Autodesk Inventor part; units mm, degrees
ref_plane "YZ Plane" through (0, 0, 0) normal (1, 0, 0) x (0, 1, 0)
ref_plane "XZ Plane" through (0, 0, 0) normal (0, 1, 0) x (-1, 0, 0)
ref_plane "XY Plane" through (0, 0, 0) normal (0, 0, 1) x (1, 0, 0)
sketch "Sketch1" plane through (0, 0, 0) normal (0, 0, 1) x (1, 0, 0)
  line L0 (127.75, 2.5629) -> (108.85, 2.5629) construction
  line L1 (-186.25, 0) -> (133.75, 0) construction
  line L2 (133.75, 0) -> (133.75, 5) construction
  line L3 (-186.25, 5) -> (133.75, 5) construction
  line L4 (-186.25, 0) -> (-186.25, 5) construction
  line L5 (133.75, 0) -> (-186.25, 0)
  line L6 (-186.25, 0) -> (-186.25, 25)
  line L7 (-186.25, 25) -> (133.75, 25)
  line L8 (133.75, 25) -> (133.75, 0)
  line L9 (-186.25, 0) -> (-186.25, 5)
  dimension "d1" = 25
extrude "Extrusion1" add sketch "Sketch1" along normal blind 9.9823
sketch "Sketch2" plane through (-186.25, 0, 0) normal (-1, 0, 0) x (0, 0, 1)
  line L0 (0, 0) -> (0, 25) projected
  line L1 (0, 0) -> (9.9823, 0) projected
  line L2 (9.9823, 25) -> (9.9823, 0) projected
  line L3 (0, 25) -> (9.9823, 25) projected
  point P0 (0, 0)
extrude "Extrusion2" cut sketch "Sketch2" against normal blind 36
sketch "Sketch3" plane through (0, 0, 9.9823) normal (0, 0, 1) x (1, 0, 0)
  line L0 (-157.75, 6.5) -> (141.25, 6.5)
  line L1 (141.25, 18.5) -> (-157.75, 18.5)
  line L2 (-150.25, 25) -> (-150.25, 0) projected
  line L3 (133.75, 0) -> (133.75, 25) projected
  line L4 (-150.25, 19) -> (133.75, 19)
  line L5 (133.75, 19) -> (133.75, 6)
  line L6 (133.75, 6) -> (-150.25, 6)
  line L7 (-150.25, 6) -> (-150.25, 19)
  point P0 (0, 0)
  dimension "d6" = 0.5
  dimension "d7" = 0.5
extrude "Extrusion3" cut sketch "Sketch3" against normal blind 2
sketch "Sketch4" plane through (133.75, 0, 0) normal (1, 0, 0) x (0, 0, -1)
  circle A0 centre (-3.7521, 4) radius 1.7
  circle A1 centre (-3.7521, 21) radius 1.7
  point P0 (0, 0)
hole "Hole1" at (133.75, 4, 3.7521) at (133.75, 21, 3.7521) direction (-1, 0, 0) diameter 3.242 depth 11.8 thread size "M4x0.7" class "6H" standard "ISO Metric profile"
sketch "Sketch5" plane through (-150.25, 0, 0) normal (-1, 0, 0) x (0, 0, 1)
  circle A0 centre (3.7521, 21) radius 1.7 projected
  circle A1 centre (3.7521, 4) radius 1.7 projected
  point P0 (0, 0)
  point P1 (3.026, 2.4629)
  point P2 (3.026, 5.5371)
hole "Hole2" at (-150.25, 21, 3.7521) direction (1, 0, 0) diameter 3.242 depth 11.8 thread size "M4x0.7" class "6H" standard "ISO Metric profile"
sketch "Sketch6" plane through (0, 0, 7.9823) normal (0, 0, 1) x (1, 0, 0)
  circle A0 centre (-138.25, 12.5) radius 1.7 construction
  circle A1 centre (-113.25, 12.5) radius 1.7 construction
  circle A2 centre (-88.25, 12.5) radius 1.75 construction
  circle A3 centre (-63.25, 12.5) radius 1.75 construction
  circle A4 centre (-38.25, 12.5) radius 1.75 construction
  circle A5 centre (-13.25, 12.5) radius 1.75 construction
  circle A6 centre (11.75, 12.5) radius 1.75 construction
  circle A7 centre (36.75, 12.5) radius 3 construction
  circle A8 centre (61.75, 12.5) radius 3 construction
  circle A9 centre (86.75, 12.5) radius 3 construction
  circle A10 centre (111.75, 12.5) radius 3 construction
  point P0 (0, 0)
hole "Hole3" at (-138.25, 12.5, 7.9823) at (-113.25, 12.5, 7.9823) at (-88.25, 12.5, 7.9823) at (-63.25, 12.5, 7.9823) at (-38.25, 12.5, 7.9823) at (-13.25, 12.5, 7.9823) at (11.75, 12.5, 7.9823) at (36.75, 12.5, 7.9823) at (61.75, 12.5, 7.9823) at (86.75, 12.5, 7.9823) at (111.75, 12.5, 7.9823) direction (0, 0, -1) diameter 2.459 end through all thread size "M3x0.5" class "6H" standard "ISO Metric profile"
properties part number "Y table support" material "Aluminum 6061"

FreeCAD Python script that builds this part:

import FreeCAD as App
import Part
import Sketcher

V = App.Vector
Q = App.Units.Quantity


def add_polygon(sketch, points):
    """Adds a closed chain of lines whose ends are joined by coincident constraints."""
    first, n = sketch.GeometryCount, len(points)
    for a, b in zip(points, points[1:] + points[:1]):
        sketch.addGeometry(Part.LineSegment(App.Vector(*a, 0), App.Vector(*b, 0)), False)
    for i in range(n):
        sketch.addConstraint(Sketcher.Constraint("Coincident", first + i, 2, first + (i + 1) % n, 1))

doc = App.newDocument("Part")
body = doc.addObject("PartDesign::Body", "Body")

sketch1 = body.newObject("Sketcher::SketchObject", "Sketch")
sketch1.AttachmentSupport = (doc.getObject("XY_Plane"), [""])
sketch1.MapMode = "FlatFace"
add_polygon(sketch1, [(-186, 0), (134, 0), (134, 25), (-186, 25)])
sketch1.addConstraint(Sketcher.Constraint("Horizontal", 0))
sketch1.addConstraint(Sketcher.Constraint("Vertical", 1))
sketch1.addConstraint(Sketcher.Constraint("Horizontal", 2))
sketch1.addConstraint(Sketcher.Constraint("Vertical", 3))
sketch1.addConstraint(Sketcher.Constraint("PointOnObject", 0, 2, -1))
sketch1.addConstraint(Sketcher.Constraint("DistanceY", 1, 1, 1, 2, Q("25 mm")))
sketch1.addConstraint(Sketcher.Constraint("DistanceX", 0, 1, 0, 2, Q("320 mm")))
sketch1.addConstraint(Sketcher.Constraint("DistanceX", -1, 1, 0, 2, Q("133.75 mm")))
pad1 = body.newObject("PartDesign::Pad", "Pad")
pad1.Profile = sketch1
pad1.Length = 9.9823

sketch2 = body.newObject("Sketcher::SketchObject", "Sketch001")
sketch2.AttachmentSupport = (doc.getObject("YZ_Plane"), [""])
sketch2.MapMode = "FlatFace"
sketch2.AttachmentOffset = App.Placement(V(0, 0, -186.25), App.Rotation())
add_polygon(sketch2, [(25, 0), (0, 0), (0, 10), (25, 10)])
sketch2.addConstraint(Sketcher.Constraint("Horizontal", 0))
sketch2.addConstraint(Sketcher.Constraint("Vertical", 1))
sketch2.addConstraint(Sketcher.Constraint("Horizontal", 2))
sketch2.addConstraint(Sketcher.Constraint("Vertical", 3))
sketch2.addConstraint(Sketcher.Constraint("Coincident", 0, 2, -1, 1))
sketch2.addConstraint(Sketcher.Constraint("DistanceX", 0, 2, 0, 1, Q("25 mm")))
sketch2.addConstraint(Sketcher.Constraint("DistanceY", 1, 1, 1, 2, Q("9.9823 mm")))
pocket1 = body.newObject("PartDesign::Pocket", "Pocket")
pocket1.Profile = sketch2
pocket1.Length = 36
pocket1.Reversed = True

sketch3 = body.newObject("Sketcher::SketchObject", "Sketch002")
sketch3.AttachmentSupport = (doc.getObject("XY_Plane"), [""])
sketch3.MapMode = "FlatFace"
sketch3.AttachmentOffset = App.Placement(V(0, 0, 9.9823), App.Rotation())
add_polygon(sketch3, [(-150, 6), (134, 6), (134, 19), (-150, 19)])
sketch3.addConstraint(Sketcher.Constraint("Horizontal", 0))
sketch3.addConstraint(Sketcher.Constraint("Vertical", 1))
sketch3.addConstraint(Sketcher.Constraint("Horizontal", 2))
sketch3.addConstraint(Sketcher.Constraint("Vertical", 3))
sketch3.addConstraint(Sketcher.Constraint("DistanceX", 0, 1, 0, 2, Q("284 mm")))
sketch3.addConstraint(Sketcher.Constraint("DistanceY", 1, 1, 1, 2, Q("13 mm")))
sketch3.addConstraint(Sketcher.Constraint("DistanceY", -1, 1, 0, 2, Q("6 mm")))
sketch3.addConstraint(Sketcher.Constraint("DistanceX", -1, 1, 0, 2, Q("133.75 mm")))
pocket2 = body.newObject("PartDesign::Pocket", "Pocket001")
pocket2.Profile = sketch3
pocket2.Length = 2

sketch4 = body.newObject("Sketcher::SketchObject", "Sketch003")
sketch4.AttachmentSupport = (doc.getObject("YZ_Plane"), [""])
sketch4.MapMode = "FlatFace"
sketch4.AttachmentOffset = App.Placement(V(0, 0, 133.75), App.Rotation())
sketch4.addGeometry(Part.Circle(V(4, 3.8, 0), V(0, 0, 1), 1.6), False)
sketch4.addGeometry(Part.Circle(V(21, 3.8, 0), V(0, 0, 1), 1.6), False)
sketch4.addConstraint(Sketcher.Constraint("Equal", 0, 1))
sketch4.addConstraint(Sketcher.Constraint("Horizontal", 0, 3, 1, 3))
sketch4.addConstraint(Sketcher.Constraint("Diameter", 0, Q("3.242 mm")))
sketch4.addConstraint(Sketcher.Constraint("DistanceX", -1, 1, 0, 3, Q("4 mm")))
sketch4.addConstraint(Sketcher.Constraint("DistanceX", -1, 1, 1, 3, Q("21 mm")))
sketch4.addConstraint(Sketcher.Constraint("DistanceY", -1, 1, 0, 3, Q("3.752 mm")))
doc.recompute()
hole = body.newObject("PartDesign::Hole", "Hole")
hole.Profile = sketch4
hole.ThreadType = "None"
hole.Diameter = 3.242
hole.DepthType = "Dimension"
hole.Depth = 11.8
hole.DrillPoint = "Flat"

sketch5 = body.newObject("Sketcher::SketchObject", "Sketch004")
sketch5.AttachmentSupport = (doc.getObject("YZ_Plane"), [""])
sketch5.MapMode = "FlatFace"
sketch5.AttachmentOffset = App.Placement(V(0, 0, -150.25), App.Rotation())
sketch5.addGeometry(Part.Circle(V(21, 3.8, 0), V(0, 0, 1), 1.6), False)
sketch5.addConstraint(Sketcher.Constraint("Diameter", 0, Q("3.242 mm")))
sketch5.addConstraint(Sketcher.Constraint("DistanceX", -1, 1, 0, 3, Q("21 mm")))
sketch5.addConstraint(Sketcher.Constraint("DistanceY", -1, 1, 0, 3, Q("3.752 mm")))
doc.recompute()
hole2 = body.newObject("PartDesign::Hole", "Hole001")
hole2.Profile = sketch5
hole2.ThreadType = "None"
hole2.Diameter = 3.242
hole2.DepthType = "Dimension"
hole2.Depth = 11.8
hole2.DrillPoint = "Flat"
hole2.Reversed = True

sketch6 = body.newObject("Sketcher::SketchObject", "Sketch005")
sketch6.AttachmentSupport = (doc.getObject("XY_Plane"), [""])
sketch6.MapMode = "FlatFace"
sketch6.AttachmentOffset = App.Placement(V(0, 0, 7.9823), App.Rotation())
sketch6.addGeometry(Part.Circle(V(-138.2, 12.5, 0), V(0, 0, 1), 1.2), False)
sketch6.addGeometry(Part.Circle(V(-113.2, 12.5, 0), V(0, 0, 1), 1.2), False)
sketch6.addGeometry(Part.Circle(V(-88.2, 12.5, 0), V(0, 0, 1), 1.2), False)
sketch6.addGeometry(Part.Circle(V(-63.2, 12.5, 0), V(0, 0, 1), 1.2), False)
sketch6.addGeometry(Part.Circle(V(-38.2, 12.5, 0), V(0, 0, 1), 1.2), False)
sketch6.addGeometry(Part.Circle(V(-13.2, 12.5, 0), V(0, 0, 1), 1.2), False)
sketch6.addGeometry(Part.Circle(V(11.8, 12.5, 0), V(0, 0, 1), 1.2), False)
sketch6.addGeometry(Part.Circle(V(36.8, 12.5, 0), V(0, 0, 1), 1.2), False)
sketch6.addGeometry(Part.Circle(V(61.8, 12.5, 0), V(0, 0, 1), 1.2), False)
sketch6.addGeometry(Part.Circle(V(86.8, 12.5, 0), V(0, 0, 1), 1.2), False)
sketch6.addGeometry(Part.Circle(V(111.8, 12.5, 0), V(0, 0, 1), 1.2), False)
sketch6.addConstraint(Sketcher.Constraint("Equal", 0, 1))
sketch6.addConstraint(Sketcher.Constraint("Equal", 1, 2))
sketch6.addConstraint(Sketcher.Constraint("Equal", 2, 3))
sketch6.addConstraint(Sketcher.Constraint("Equal", 3, 4))
sketch6.addConstraint(Sketcher.Constraint("Equal", 4, 5))
sketch6.addConstraint(Sketcher.Constraint("Equal", 5, 6))
sketch6.addConstraint(Sketcher.Constraint("Equal", 6, 7))
sketch6.addConstraint(Sketcher.Constraint("Equal", 7, 8))
sketch6.addConstraint(Sketcher.Constraint("Equal", 8, 9))
sketch6.addConstraint(Sketcher.Constraint("Equal", 9, 10))
sketch6.addConstraint(Sketcher.Constraint("Horizontal", 0, 3, 1, 3))
sketch6.addConstraint(Sketcher.Constraint("Horizontal", 1, 3, 2, 3))
sketch6.addConstraint(Sketcher.Constraint("Horizontal", 2, 3, 3, 3))
sketch6.addConstraint(Sketcher.Constraint("Horizontal", 3, 3, 4, 3))
sketch6.addConstraint(Sketcher.Constraint("Horizontal", 4, 3, 5, 3))
sketch6.addConstraint(Sketcher.Constraint("Horizontal", 5, 3, 6, 3))
sketch6.addConstraint(Sketcher.Constraint("Horizontal", 6, 3, 7, 3))
sketch6.addConstraint(Sketcher.Constraint("Horizontal", 7, 3, 8, 3))
sketch6.addConstraint(Sketcher.Constraint("Horizontal", 8, 3, 9, 3))
sketch6.addConstraint(Sketcher.Constraint("Horizontal", 9, 3, 10, 3))
sketch6.addConstraint(Sketcher.Constraint("Diameter", 0, Q("2.459 mm")))
sketch6.addConstraint(Sketcher.Constraint("DistanceX", 0, 3, 1, 3, Q("25 mm")))
sketch6.addConstraint(Sketcher.Constraint("DistanceX", 1, 3, 2, 3, Q("25 mm")))
sketch6.addConstraint(Sketcher.Constraint("DistanceX", 2, 3, 3, 3, Q("25 mm")))
sketch6.addConstraint(Sketcher.Constraint("DistanceX", 3, 3, 4, 3, Q("25 mm")))
sketch6.addConstraint(Sketcher.Constraint("DistanceX", 4, 3, 5, 3, Q("25 mm")))
sketch6.addConstraint(Sketcher.Constraint("DistanceX", 5, 3, 6, 3, Q("25 mm")))
sketch6.addConstraint(Sketcher.Constraint("DistanceX", 6, 3, 7, 3, Q("25 mm")))
sketch6.addConstraint(Sketcher.Constraint("DistanceX", 7, 3, 8, 3, Q("25 mm")))
sketch6.addConstraint(Sketcher.Constraint("DistanceX", 8, 3, 9, 3, Q("25 mm")))
sketch6.addConstraint(Sketcher.Constraint("DistanceX", 9, 3, 10, 3, Q("25 mm")))
sketch6.addConstraint(Sketcher.Constraint("DistanceY", -1, 1, 0, 3, Q("12.5 mm")))
sketch6.addConstraint(Sketcher.Constraint("DistanceX", 0, 3, -1, 1, Q("138.25 mm")))
doc.recompute()
hole3 = body.newObject("PartDesign::Hole", "Hole002")
hole3.Profile = sketch6
hole3.ThreadType = "None"
hole3.Diameter = 2.459
hole3.DepthType = "ThroughAll"

doc.recompute()
